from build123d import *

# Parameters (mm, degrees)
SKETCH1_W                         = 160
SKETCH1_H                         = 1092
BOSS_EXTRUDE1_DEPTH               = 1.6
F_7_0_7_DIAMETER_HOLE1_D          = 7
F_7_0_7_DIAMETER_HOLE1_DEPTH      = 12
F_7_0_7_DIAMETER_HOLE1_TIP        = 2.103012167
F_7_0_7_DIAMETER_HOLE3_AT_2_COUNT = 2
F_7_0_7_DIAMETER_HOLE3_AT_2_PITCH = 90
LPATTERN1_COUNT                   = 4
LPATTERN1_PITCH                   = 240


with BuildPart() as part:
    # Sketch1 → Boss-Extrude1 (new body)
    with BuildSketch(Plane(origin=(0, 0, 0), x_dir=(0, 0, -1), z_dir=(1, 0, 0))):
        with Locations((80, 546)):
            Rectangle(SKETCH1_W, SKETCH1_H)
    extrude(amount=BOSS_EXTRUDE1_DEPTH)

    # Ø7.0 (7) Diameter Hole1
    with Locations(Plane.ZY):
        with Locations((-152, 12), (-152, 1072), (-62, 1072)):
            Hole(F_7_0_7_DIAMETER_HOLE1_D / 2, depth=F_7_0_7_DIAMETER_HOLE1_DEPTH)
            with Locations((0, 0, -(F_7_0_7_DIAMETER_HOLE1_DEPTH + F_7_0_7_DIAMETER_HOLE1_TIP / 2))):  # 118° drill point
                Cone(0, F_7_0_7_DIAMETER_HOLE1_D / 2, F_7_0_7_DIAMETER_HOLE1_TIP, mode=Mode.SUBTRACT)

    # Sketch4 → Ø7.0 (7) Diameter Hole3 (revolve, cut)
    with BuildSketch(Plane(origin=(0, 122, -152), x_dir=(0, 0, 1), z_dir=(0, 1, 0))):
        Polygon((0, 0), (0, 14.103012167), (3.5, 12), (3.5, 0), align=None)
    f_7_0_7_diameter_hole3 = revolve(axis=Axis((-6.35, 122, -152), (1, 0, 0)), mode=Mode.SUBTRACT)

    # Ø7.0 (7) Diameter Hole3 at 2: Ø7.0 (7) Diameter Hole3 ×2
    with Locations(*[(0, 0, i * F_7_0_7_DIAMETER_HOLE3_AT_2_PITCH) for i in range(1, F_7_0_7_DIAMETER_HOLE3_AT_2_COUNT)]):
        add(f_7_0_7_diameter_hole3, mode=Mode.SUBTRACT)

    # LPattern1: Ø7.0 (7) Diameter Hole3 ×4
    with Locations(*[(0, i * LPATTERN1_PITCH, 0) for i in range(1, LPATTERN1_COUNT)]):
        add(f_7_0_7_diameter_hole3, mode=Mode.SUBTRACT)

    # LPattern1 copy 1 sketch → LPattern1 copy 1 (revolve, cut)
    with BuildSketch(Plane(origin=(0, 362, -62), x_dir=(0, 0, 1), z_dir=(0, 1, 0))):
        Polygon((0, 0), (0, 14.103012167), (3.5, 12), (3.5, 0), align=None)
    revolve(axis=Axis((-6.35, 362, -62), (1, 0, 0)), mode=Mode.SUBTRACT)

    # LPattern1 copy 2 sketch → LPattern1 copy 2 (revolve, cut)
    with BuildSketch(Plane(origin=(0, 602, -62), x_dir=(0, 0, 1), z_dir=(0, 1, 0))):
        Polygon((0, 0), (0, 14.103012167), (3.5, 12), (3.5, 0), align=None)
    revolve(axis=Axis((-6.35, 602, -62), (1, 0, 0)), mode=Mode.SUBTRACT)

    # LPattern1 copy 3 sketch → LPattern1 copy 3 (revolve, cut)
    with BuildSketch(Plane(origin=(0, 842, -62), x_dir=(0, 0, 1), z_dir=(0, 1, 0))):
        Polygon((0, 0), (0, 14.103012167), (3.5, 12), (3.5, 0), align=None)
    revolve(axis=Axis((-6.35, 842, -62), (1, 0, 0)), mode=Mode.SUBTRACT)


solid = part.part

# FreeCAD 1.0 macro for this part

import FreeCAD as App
import Part
import Sketcher
from FreeCAD import Vector
Q = App.Units.Quantity


def add_polygon(sketch, points):
    """Adds a closed chain of lines whose ends are joined by coincident constraints."""
    first, n = sketch.GeometryCount, len(points)
    for a, b in zip(points, points[1:] + points[:1]):
        sketch.addGeometry(Part.LineSegment(App.Vector(*a, 0), App.Vector(*b, 0)), False)
    for i in range(n):
        sketch.addConstraint(Sketcher.Constraint("Coincident", first + i, 2, first + (i + 1) % n, 1))

doc = App.newDocument("Part")
body = doc.addObject("PartDesign::Body", "Body")

# Sketch on YZ plane
sketch1 = body.newObject("Sketcher::SketchObject", "Sketch")
sketch1.AttachmentSupport = (doc.getObject("YZ_Plane"), [""])
sketch1.MapMode = "FlatFace"
add_polygon(sketch1, [(1092, 0), (0, 0), (0, -160), (1092, -160)])  # lines 0-3
sketch1.addConstraint([
    Sketcher.Constraint("Horizontal", 0),
    Sketcher.Constraint("Vertical", 1),
    Sketcher.Constraint("Horizontal", 2),
    Sketcher.Constraint("Vertical", 3),
    Sketcher.Constraint("Coincident", 0, 2, -1, 1),
    Sketcher.Constraint("DistanceX", 0, 2, 0, 1, 1092.0),
    Sketcher.Constraint("DistanceY", 1, 2, 1, 1, 160.0),
])
pad1 = body.newObject("PartDesign::Pad", "Pad")
pad1.Profile = sketch1
pad1.Length = 1.6

# Sketch on YZ plane
sketch2 = body.newObject("Sketcher::SketchObject", "Sketch001")
sketch2.AttachmentSupport = (doc.getObject("YZ_Plane"), [""])
sketch2.MapMode = "FlatFace"
sketch2.addGeometry([
    Part.Circle(Vector(12, -152, 0), Vector(0, 0, 1), 3.5),
    Part.Circle(Vector(1072, -152, 0), Vector(0, 0, 1), 3.5),
    Part.Circle(Vector(1072, -62, 0), Vector(0, 0, 1), 3.5),
], False)
sketch2.addConstraint([
    Sketcher.Constraint("Equal", 0, 1),
    Sketcher.Constraint("Equal", 1, 2),
    Sketcher.Constraint("Horizontal", 0, 3, 1, 3),
    Sketcher.Constraint("Vertical", 1, 3, 2, 3),
    Sketcher.Constraint("Diameter", 0, 7.0),
    Sketcher.Constraint("DistanceX", -1, 1, 0, 3, 12.0),
    Sketcher.Constraint("DistanceY", 0, 3, -1, 1, 152.0),
    Sketcher.Constraint("DistanceX", -1, 1, 1, 3, 1072.0),
    Sketcher.Constraint("DistanceY", 2, 3, -1, 1, 62.0),
])
doc.recompute()
hole = body.newObject("PartDesign::Hole", "Hole")
hole.Profile = sketch2
hole.ThreadType = "None"
hole.Diameter = 7
hole.DepthType = "Dimension"
hole.Depth = 12
hole.DrillPoint = "Angled"
hole.DrillPointAngle = 118
hole.Reversed = True

# Sketch on XZ plane
sketch3 = body.newObject("Sketcher::SketchObject", "Sketch002")
sketch3.AttachmentSupport = (doc.getObject("XZ_Plane"), [""])
sketch3.MapMode = "FlatFace"
sketch3.AttachmentOffset = App.Placement(Vector(0, 0, -122), App.Rotation())
add_polygon(sketch3, [(14.1, -152), (0, -152), (0, -148.5), (12, -148.5)])  # lines 0-3
sketch3.addGeometry(Part.LineSegment(Vector(0, -152, 0), Vector(14.1, -152, 0)), True)  # axis
sketch3.addConstraint([
    Sketcher.Constraint("Horizontal", 0),
    Sketcher.Constraint("Vertical", 1),
    Sketcher.Constraint("Horizontal", 2),
    Sketcher.Constraint("Horizontal", 4),
    Sketcher.Constraint("Coincident", 4, 1, 0, 2),
    Sketcher.Constraint("PointOnObject", 0, 2, -2),
    Sketcher.Constraint("Equal", 0, 4),
    Sketcher.Constraint("DistanceX", 2, 1, 2, 2, 12.0),
    Sketcher.Constraint("Angle", 3, Q("-59 deg")),
    Sketcher.Constraint("DistanceY", 1, 1, 1, 2, 3.5),
    Sketcher.Constraint("DistanceY", 0, 2, -1, 1, 152.0),
])
groove = body.newObject("PartDesign::Groove", "Groove")
groove.Profile = sketch3
groove.ReferenceAxis = (sketch3, ["Axis0"])
groove.Angle = 360
doc.recompute()

linearpattern = body.newObject("PartDesign::LinearPattern", "LinearPattern")
linearpattern.Originals = [groove]
linearpattern.Direction = (doc.getObject("Z_Axis"), [""])
linearpattern.Mode = "offset"
linearpattern.Offset = 90
linearpattern.Occurrences = 2
body.Tip = linearpattern
doc.recompute()

linearpattern2 = body.newObject("PartDesign::LinearPattern", "LinearPattern001")
linearpattern2.Originals = [groove]
linearpattern2.Direction = (doc.getObject("Y_Axis"), [""])
linearpattern2.Mode = "offset"
linearpattern2.Offset = 240
linearpattern2.Occurrences = 4
body.Tip = linearpattern2

# Sketch on XZ plane
sketch4 = body.newObject("Sketcher::SketchObject", "Sketch003")
sketch4.AttachmentSupport = (doc.getObject("XZ_Plane"), [""])
sketch4.MapMode = "FlatFace"
sketch4.AttachmentOffset = App.Placement(Vector(0, 0, -362), App.Rotation())
add_polygon(sketch4, [(14.1, -62), (0, -62), (0, -58.5), (12, -58.5)])  # lines 0-3
sketch4.addGeometry(Part.LineSegment(Vector(0, -62, 0), Vector(14.1, -62, 0)), True)  # axis
sketch4.addConstraint([
    Sketcher.Constraint("Horizontal", 0),
    Sketcher.Constraint("Vertical", 1),
    Sketcher.Constraint("Horizontal", 2),
    Sketcher.Constraint("Horizontal", 4),
    Sketcher.Constraint("Coincident", 4, 1, 0, 2),
    Sketcher.Constraint("PointOnObject", 0, 2, -2),
    Sketcher.Constraint("Equal", 0, 4),
    Sketcher.Constraint("DistanceX", 2, 1, 2, 2, 12.0),
    Sketcher.Constraint("Angle", 3, Q("-59 deg")),
    Sketcher.Constraint("DistanceY", 1, 1, 1, 2, 3.5),
    Sketcher.Constraint("DistanceY", 0, 2, -1, 1, 62.0),
])
groove2 = body.newObject("PartDesign::Groove", "Groove001")
groove2.Profile = sketch4
groove2.ReferenceAxis = (sketch4, ["Axis0"])
groove2.Angle = 360

# Sketch on XZ plane
sketch5 = body.newObject("Sketcher::SketchObject", "Sketch004")
sketch5.AttachmentSupport = (doc.getObject("XZ_Plane"), [""])
sketch5.MapMode = "FlatFace"
sketch5.AttachmentOffset = App.Placement(Vector(0, 0, -602), App.Rotation())
add_polygon(sketch5, [(14.1, -62), (0, -62), (0, -58.5), (12, -58.5)])  # lines 0-3
sketch5.addGeometry(Part.LineSegment(Vector(0, -62, 0), Vector(14.1, -62, 0)), True)  # axis
sketch5.addConstraint([
    Sketcher.Constraint("Horizontal", 0),
    Sketcher.Constraint("Vertical", 1),
    Sketcher.Constraint("Horizontal", 2),
    Sketcher.Constraint("Horizontal", 4),
    Sketcher.Constraint("Coincident", 4, 1, 0, 2),
    Sketcher.Constraint("PointOnObject", 0, 2, -2),
    Sketcher.Constraint("Equal", 0, 4),
    Sketcher.Constraint("DistanceX", 2, 1, 2, 2, 12.0),
    Sketcher.Constraint("Angle", 3, Q("-59 deg")),
    Sketcher.Constraint("DistanceY", 1, 1, 1, 2, 3.5),
    Sketcher.Constraint("DistanceY", 0, 2, -1, 1, 62.0),
])
groove3 = body.newObject("PartDesign::Groove", "Groove002")
groove3.Profile = sketch5
groove3.ReferenceAxis = (sketch5, ["Axis0"])
groove3.Angle = 360

# Sketch on XZ plane
sketch6 = body.newObject("Sketcher::SketchObject", "Sketch005")
sketch6.AttachmentSupport = (doc.getObject("XZ_Plane"), [""])
sketch6.MapMode = "FlatFace"
sketch6.AttachmentOffset = App.Placement(Vector(0, 0, -842), App.Rotation())
add_polygon(sketch6, [(14.1, -62), (0, -62), (0, -58.5), (12, -58.5)])  # lines 0-3
sketch6.addGeometry(Part.LineSegment(Vector(0, -62, 0), Vector(14.1, -62, 0)), True)  # axis
sketch6.addConstraint([
    Sketcher.Constraint("Horizontal", 0),
    Sketcher.Constraint("Vertical", 1),
    Sketcher.Constraint("Horizontal", 2),
    Sketcher.Constraint("Horizontal", 4),
    Sketcher.Constraint("Coincident", 4, 1, 0, 2),
    Sketcher.Constraint("PointOnObject", 0, 2, -2),
    Sketcher.Constraint("Equal", 0, 4),
    Sketcher.Constraint("DistanceX", 2, 1, 2, 2, 12.0),
    Sketcher.Constraint("Angle", 3, Q("-59 deg")),
    Sketcher.Constraint("DistanceY", 1, 1, 1, 2, 3.5),
    Sketcher.Constraint("DistanceY", 0, 2, -1, 1, 62.0),
])
groove4 = body.newObject("PartDesign::Groove", "Groove003")
groove4.Profile = sketch6
groove4.ReferenceAxis = (sketch6, ["Axis0"])
groove4.Angle = 360

doc.recompute()
